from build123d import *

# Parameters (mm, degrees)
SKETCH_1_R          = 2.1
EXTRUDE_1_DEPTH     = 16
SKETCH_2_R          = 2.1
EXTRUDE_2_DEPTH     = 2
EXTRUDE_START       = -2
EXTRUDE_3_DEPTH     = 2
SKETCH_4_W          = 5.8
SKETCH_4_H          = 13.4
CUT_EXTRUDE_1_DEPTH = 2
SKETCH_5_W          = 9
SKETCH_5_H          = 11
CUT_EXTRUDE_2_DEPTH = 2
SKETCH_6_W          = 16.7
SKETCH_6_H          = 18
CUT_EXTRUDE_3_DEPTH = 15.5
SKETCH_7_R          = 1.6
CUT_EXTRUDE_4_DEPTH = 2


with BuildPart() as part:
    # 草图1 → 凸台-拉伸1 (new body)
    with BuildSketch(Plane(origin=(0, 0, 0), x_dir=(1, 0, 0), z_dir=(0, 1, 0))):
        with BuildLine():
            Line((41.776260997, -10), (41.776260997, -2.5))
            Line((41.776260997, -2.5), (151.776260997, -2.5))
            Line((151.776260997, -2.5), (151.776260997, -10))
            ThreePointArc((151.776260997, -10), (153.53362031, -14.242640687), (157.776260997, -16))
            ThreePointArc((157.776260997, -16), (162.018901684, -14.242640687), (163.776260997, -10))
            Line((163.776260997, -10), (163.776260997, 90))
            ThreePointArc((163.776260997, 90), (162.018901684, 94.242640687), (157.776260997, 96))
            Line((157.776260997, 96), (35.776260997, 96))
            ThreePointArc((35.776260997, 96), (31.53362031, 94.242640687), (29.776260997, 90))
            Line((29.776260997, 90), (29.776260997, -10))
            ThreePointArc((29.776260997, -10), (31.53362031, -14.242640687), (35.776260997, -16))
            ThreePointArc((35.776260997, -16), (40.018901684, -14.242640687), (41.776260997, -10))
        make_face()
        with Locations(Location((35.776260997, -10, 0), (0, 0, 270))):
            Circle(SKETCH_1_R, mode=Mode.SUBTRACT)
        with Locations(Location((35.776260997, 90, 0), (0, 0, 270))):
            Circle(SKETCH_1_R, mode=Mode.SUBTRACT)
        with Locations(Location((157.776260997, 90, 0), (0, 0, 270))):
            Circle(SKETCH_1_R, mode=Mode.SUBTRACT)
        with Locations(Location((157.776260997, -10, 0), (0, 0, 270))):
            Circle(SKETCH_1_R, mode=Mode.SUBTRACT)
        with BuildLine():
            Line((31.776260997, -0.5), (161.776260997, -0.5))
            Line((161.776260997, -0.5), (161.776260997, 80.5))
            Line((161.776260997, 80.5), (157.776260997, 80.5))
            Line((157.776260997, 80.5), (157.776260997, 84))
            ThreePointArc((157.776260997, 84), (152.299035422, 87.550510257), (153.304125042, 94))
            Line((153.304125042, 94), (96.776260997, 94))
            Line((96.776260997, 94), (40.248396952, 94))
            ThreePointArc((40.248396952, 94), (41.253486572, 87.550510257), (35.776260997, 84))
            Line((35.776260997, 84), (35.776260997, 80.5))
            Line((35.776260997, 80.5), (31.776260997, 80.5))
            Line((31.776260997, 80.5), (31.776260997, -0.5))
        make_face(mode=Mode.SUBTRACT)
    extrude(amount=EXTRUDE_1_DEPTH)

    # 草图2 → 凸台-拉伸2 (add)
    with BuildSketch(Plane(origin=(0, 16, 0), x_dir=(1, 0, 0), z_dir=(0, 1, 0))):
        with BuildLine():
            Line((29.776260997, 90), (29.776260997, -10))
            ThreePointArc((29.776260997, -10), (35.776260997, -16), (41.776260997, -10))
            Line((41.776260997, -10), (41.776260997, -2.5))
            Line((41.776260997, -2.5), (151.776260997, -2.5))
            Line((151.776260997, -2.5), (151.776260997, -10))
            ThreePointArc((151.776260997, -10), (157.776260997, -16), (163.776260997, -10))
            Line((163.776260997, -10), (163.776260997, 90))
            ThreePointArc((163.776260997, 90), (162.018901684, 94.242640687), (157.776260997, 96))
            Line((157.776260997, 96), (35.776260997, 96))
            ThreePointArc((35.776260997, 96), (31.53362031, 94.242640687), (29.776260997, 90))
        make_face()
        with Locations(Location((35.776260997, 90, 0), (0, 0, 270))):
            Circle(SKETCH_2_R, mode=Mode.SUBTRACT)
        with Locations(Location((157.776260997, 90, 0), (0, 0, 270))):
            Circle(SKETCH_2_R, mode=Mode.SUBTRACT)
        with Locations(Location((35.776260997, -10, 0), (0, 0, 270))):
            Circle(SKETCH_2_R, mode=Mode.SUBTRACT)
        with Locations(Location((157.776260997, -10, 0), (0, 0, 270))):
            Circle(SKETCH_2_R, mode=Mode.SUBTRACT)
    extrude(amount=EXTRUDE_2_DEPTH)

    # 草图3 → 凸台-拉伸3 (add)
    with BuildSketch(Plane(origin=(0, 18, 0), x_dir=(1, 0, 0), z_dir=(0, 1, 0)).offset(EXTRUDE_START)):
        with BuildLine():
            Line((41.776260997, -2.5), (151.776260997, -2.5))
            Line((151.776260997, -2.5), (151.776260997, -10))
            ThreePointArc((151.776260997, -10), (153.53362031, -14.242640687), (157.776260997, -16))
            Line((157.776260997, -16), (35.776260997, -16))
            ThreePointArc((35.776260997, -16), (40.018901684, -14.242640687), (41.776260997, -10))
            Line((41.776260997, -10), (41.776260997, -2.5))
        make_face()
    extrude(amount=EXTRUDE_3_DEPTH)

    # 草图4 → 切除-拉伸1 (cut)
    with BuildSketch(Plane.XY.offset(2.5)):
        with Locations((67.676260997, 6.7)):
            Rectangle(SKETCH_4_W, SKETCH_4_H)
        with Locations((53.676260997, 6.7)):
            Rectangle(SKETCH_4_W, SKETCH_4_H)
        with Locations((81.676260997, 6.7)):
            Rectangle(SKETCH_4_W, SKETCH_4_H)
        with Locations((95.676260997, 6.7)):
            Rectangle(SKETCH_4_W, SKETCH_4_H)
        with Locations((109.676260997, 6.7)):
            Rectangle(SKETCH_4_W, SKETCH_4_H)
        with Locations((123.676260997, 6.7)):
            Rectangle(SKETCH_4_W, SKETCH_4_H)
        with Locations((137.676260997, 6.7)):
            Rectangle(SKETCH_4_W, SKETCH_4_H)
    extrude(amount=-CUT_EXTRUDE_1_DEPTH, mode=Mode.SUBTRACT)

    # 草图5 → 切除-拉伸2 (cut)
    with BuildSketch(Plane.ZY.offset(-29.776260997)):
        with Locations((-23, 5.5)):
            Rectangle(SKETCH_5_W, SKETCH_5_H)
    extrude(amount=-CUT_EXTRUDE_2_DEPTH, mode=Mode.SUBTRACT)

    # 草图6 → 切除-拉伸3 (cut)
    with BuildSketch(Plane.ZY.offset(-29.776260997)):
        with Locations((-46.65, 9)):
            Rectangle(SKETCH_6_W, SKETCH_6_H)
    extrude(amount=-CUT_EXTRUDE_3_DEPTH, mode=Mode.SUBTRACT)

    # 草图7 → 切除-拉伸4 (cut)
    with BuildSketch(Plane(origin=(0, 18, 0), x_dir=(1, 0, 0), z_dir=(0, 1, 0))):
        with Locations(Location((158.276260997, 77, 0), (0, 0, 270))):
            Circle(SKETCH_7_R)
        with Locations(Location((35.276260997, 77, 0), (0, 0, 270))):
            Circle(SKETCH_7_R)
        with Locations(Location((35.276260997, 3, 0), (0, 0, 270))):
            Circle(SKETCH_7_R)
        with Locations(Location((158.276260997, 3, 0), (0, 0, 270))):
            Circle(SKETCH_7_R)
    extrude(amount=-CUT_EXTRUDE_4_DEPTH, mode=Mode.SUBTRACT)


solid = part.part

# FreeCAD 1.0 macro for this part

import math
import FreeCAD as App
import Part
import Sketcher

V = App.Vector


def add_polygon(sketch, points):
    """Adds a closed chain of lines whose ends are joined by coincident constraints."""
    first, n = sketch.GeometryCount, len(points)
    for a, b in zip(points, points[1:] + points[:1]):
        sketch.addGeometry(Part.LineSegment(App.Vector(*a, 0), App.Vector(*b, 0)), False)
    for i in range(n):
        sketch.addConstraint(Sketcher.Constraint("Coincident", first + i, 2, first + (i + 1) % n, 1))

doc = App.newDocument("Part")
body = doc.addObject("PartDesign::Body", "Body")

# Sketch on XZ plane
sketch1 = doc.addObject("Sketcher::SketchObject", "Sketch")
body.addObject(sketch1)
sketch1.AttachmentSupport = (doc.XZ_Plane, [""])
sketch1.MapMode = "FlatFace"
sketch1.addGeometry(Part.LineSegment(V(41.8, 10, 0), V(41.8, 2.5, 0)), False)
sketch1.addGeometry(Part.LineSegment(V(41.8, 2.5, 0), V(151.8, 2.5, 0)), False)
sketch1.addGeometry(Part.LineSegment(V(151.8, 2.5, 0), V(151.8, 10, 0)), False)
sketch1.addGeometry(Part.ArcOfCircle(Part.Circle(V(157.8, 10, 0), V(0, 0, 1), 6), math.radians(90), math.radians(180)), False)
sketch1.addGeometry(Part.ArcOfCircle(Part.Circle(V(157.8, 10, 0), V(0, 0, 1), 6), math.radians(0), math.radians(90)), False)
sketch1.addGeometry(Part.LineSegment(V(163.8, 10, 0), V(163.8, -90, 0)), False)
sketch1.addGeometry(Part.ArcOfCircle(Part.Circle(V(157.8, -90, 0), V(0, 0, 1), 6), math.radians(-90), math.radians(0)), False)
sketch1.addGeometry(Part.LineSegment(V(157.8, -96, 0), V(35.8, -96, 0)), False)
sketch1.addGeometry(Part.ArcOfCircle(Part.Circle(V(35.8, -90, 0), V(0, 0, 1), 6), math.radians(180), math.radians(270)), False)
sketch1.addGeometry(Part.LineSegment(V(29.8, -90, 0), V(29.8, 10, 0)), False)
sketch1.addGeometry(Part.ArcOfCircle(Part.Circle(V(35.8, 10, 0), V(0, 0, 1), 6), math.radians(90), math.radians(180)), False)
sketch1.addGeometry(Part.ArcOfCircle(Part.Circle(V(35.8, 10, 0), V(0, 0, 1), 6), math.radians(0), math.radians(90)), False)
sketch1.addGeometry(Part.Circle(V(35.8, 10, 0), V(0, 0, 1), 2.1), False)
sketch1.addGeometry(Part.Circle(V(157.8, 10, 0), V(0, 0, 1), 2.1), False)
sketch1.addGeometry(Part.Circle(V(35.8, -90, 0), V(0, 0, 1), 2.1), False)
sketch1.addGeometry(Part.LineSegment(V(161.8, 0.5, 0), V(31.8, 0.5, 0)), False)
sketch1.addGeometry(Part.LineSegment(V(31.8, 0.5, 0), V(31.8, -80.5, 0)), False)
sketch1.addGeometry(Part.LineSegment(V(31.8, -80.5, 0), V(35.8, -80.5, 0)), False)
sketch1.addGeometry(Part.LineSegment(V(35.8, -80.5, 0), V(35.8, -84, 0)), False)
sketch1.addGeometry(Part.ArcOfCircle(Part.Circle(V(35.8, -90, 0), V(0, 0, 1), 6), math.radians(-42), math.radians(90)), False)
sketch1.addGeometry(Part.LineSegment(V(40.2, -94, 0), V(153.3, -94, 0)), False)
sketch1.addGeometry(Part.ArcOfCircle(Part.Circle(V(157.8, -90, 0), V(0, 0, 1), 6), math.radians(90), math.radians(222)), False)
sketch1.addGeometry(Part.LineSegment(V(157.8, -84, 0), V(157.8, -80.5, 0)), False)
sketch1.addGeometry(Part.LineSegment(V(157.8, -80.5, 0), V(161.8, -80.5, 0)), False)
sketch1.addGeometry(Part.LineSegment(V(161.8, -80.5, 0), V(161.8, 0.5, 0)), False)
sketch1.addGeometry(Part.Circle(V(157.8, -90, 0), V(0, 0, 1), 2.1), False)
sketch1.addConstraint(Sketcher.Constraint("Coincident", 0, 2, 1, 1))
sketch1.addConstraint(Sketcher.Constraint("Coincident", 1, 2, 2, 1))
sketch1.addConstraint(Sketcher.Constraint("Tangent", 2, 2, 3, 2))
sketch1.addConstraint(Sketcher.Constraint("Tangent", 3, 1, 4, 2))
sketch1.addConstraint(Sketcher.Constraint("Tangent", 4, 1, 5, 1))
sketch1.addConstraint(Sketcher.Constraint("Tangent", 5, 2, 6, 2))
sketch1.addConstraint(Sketcher.Constraint("Tangent", 6, 1, 7, 1))
sketch1.addConstraint(Sketcher.Constraint("Tangent", 7, 2, 8, 2))
sketch1.addConstraint(Sketcher.Constraint("Tangent", 8, 1, 9, 1))
sketch1.addConstraint(Sketcher.Constraint("Tangent", 9, 2, 10, 2))
sketch1.addConstraint(Sketcher.Constraint("Tangent", 10, 1, 11, 2))
sketch1.addConstraint(Sketcher.Constraint("Tangent", 11, 1, 0, 1))
sketch1.addConstraint(Sketcher.Constraint("Coincident", 15, 2, 16, 1))
sketch1.addConstraint(Sketcher.Constraint("Coincident", 16, 2, 17, 1))
sketch1.addConstraint(Sketcher.Constraint("Coincident", 17, 2, 18, 1))
sketch1.addConstraint(Sketcher.Constraint("Coincident", 18, 2, 19, 2))
sketch1.addConstraint(Sketcher.Constraint("Coincident", 19, 1, 20, 1))
sketch1.addConstraint(Sketcher.Constraint("Coincident", 20, 2, 21, 2))
sketch1.addConstraint(Sketcher.Constraint("Coincident", 21, 1, 22, 1))
sketch1.addConstraint(Sketcher.Constraint("Coincident", 22, 2, 23, 1))
sketch1.addConstraint(Sketcher.Constraint("Coincident", 23, 2, 24, 1))
sketch1.addConstraint(Sketcher.Constraint("Coincident", 24, 2, 15, 1))
sketch1.addConstraint(Sketcher.Constraint("Vertical", 0))
sketch1.addConstraint(Sketcher.Constraint("Horizontal", 1))
sketch1.addConstraint(Sketcher.Constraint("Vertical", 2))
sketch1.addConstraint(Sketcher.Constraint("Vertical", 5))
sketch1.addConstraint(Sketcher.Constraint("Horizontal", 7))
sketch1.addConstraint(Sketcher.Constraint("Vertical", 9))
sketch1.addConstraint(Sketcher.Constraint("Horizontal", 15))
sketch1.addConstraint(Sketcher.Constraint("Vertical", 16))
sketch1.addConstraint(Sketcher.Constraint("Horizontal", 17))
sketch1.addConstraint(Sketcher.Constraint("Vertical", 18))
sketch1.addConstraint(Sketcher.Constraint("Horizontal", 20))
sketch1.addConstraint(Sketcher.Constraint("Vertical", 22))
sketch1.addConstraint(Sketcher.Constraint("Horizontal", 23))
sketch1.addConstraint(Sketcher.Constraint("Vertical", 24))
sketch1.addConstraint(Sketcher.Constraint("Coincident", 12, 3, 10, 3))
sketch1.addConstraint(Sketcher.Constraint("Coincident", 13, 3, 3, 3))
sketch1.addConstraint(Sketcher.Constraint("Coincident", 14, 3, 8, 3))
sketch1.addConstraint(Sketcher.Constraint("Coincident", 19, 3, 8, 3))
sketch1.addConstraint(Sketcher.Constraint("Coincident", 21, 3, 6, 3))
sketch1.addConstraint(Sketcher.Constraint("Coincident", 25, 3, 6, 3))
sketch1.addConstraint(Sketcher.Constraint("Equal", 3, 4))
sketch1.addConstraint(Sketcher.Constraint("Equal", 4, 6))
sketch1.addConstraint(Sketcher.Constraint("Equal", 6, 8))
sketch1.addConstraint(Sketcher.Constraint("Equal", 8, 10))
sketch1.addConstraint(Sketcher.Constraint("Equal", 10, 11))
sketch1.addConstraint(Sketcher.Constraint("Equal", 12, 13))
sketch1.addConstraint(Sketcher.Constraint("Equal", 13, 14))
sketch1.addConstraint(Sketcher.Constraint("Equal", 11, 19))
sketch1.addConstraint(Sketcher.Constraint("Equal", 19, 21))
sketch1.addConstraint(Sketcher.Constraint("Equal", 14, 25))
sketch1.addConstraint(Sketcher.Constraint("Horizontal", 4, 3, 10, 3))
sketch1.addConstraint(Sketcher.Constraint("Horizontal", 17, 2, 22, 2))
sketch1.addConstraint(Sketcher.Constraint("Vertical", 25, 3, 3, 1))
sketch1.addConstraint(Sketcher.Constraint("Vertical", 7, 2, 10, 1))
sketch1.addConstraint(Sketcher.Constraint("Vertical", 10, 1, 17, 2))
sketch1.addConstraint(Sketcher.Constraint("Vertical", 6, 1, 21, 1))
sketch1.addConstraint(Sketcher.Constraint("Equal", 17, 23))
sketch1.addConstraint(Sketcher.Constraint("Radius", 3, 6.0))
sketch1.addConstraint(Sketcher.Constraint("Diameter", 12, 4.2))
sketch1.addConstraint(Sketcher.Constraint("DistanceX", 1, 1, 1, 2, 110.0))
sketch1.addConstraint(Sketcher.Constraint("DistanceX", 15, 2, 15, 1, 130.0))
sketch1.addConstraint(Sketcher.Constraint("DistanceY", 5, 2, 5, 1, 100.0))
sketch1.addConstraint(Sketcher.Constraint("DistanceY", 16, 2, 16, 1, 81.0))
sketch1.addConstraint(Sketcher.Constraint("DistanceY", 0, 2, 0, 1, 7.5))
sketch1.addConstraint(Sketcher.Constraint("DistanceY", 18, 2, 18, 1, 3.5))
sketch1.addConstraint(Sketcher.Constraint("DistanceY", -1, 1, 3, 3, 10.0))
sketch1.addConstraint(Sketcher.Constraint("DistanceY", 19, 1, -1, 1, 94.0))
sketch1.addConstraint(Sketcher.Constraint("DistanceX", -1, 1, 3, 3, 157.776261))
pad1 = doc.addObject("PartDesign::Pad", "Pad")
body.addObject(pad1)
pad1.Profile = sketch1
pad1.Length = 16
pad1.Reversed = True

# Sketch on XZ plane
sketch2 = doc.addObject("Sketcher::SketchObject", "Sketch001")
body.addObject(sketch2)
sketch2.AttachmentSupport = (doc.XZ_Plane, [""])
sketch2.MapMode = "FlatFace"
sketch2.AttachmentOffset = App.Placement(V(0, 0, -16), App.Rotation())
sketch2.addGeometry(Part.LineSegment(V(29.8, -90, 0), V(29.8, 10, 0)), False)
sketch2.addGeometry(Part.ArcOfCircle(Part.Circle(V(35.8, 10, 0), V(0, 0, 1), 6), math.radians(0), math.radians(180)), False)
sketch2.addGeometry(Part.LineSegment(V(41.8, 10, 0), V(41.8, 2.5, 0)), False)
sketch2.addGeometry(Part.LineSegment(V(41.8, 2.5, 0), V(151.8, 2.5, 0)), False)
sketch2.addGeometry(Part.LineSegment(V(151.8, 2.5, 0), V(151.8, 10, 0)), False)
sketch2.addGeometry(Part.ArcOfCircle(Part.Circle(V(157.8, 10, 0), V(0, 0, 1), 6), math.radians(0), math.radians(180)), False)
sketch2.addGeometry(Part.LineSegment(V(163.8, 10, 0), V(163.8, -90, 0)), False)
sketch2.addGeometry(Part.ArcOfCircle(Part.Circle(V(157.8, -90, 0), V(0, 0, 1), 6), math.radians(-90), math.radians(0)), False)
sketch2.addGeometry(Part.LineSegment(V(157.8, -96, 0), V(35.8, -96, 0)), False)
sketch2.addGeometry(Part.ArcOfCircle(Part.Circle(V(35.8, -90, 0), V(0, 0, 1), 6), math.radians(180), math.radians(270)), False)
sketch2.addGeometry(Part.Circle(V(35.8, 10, 0), V(0, 0, 1), 2.1), False)
sketch2.addGeometry(Part.Circle(V(157.8, 10, 0), V(0, 0, 1), 2.1), False)
sketch2.addGeometry(Part.Circle(V(35.8, -90, 0), V(0, 0, 1), 2.1), False)
sketch2.addGeometry(Part.Circle(V(157.8, -90, 0), V(0, 0, 1), 2.1), False)
sketch2.addConstraint(Sketcher.Constraint("Tangent", 0, 2, 1, 2))
sketch2.addConstraint(Sketcher.Constraint("Tangent", 1, 1, 2, 1))
sketch2.addConstraint(Sketcher.Constraint("Coincident", 2, 2, 3, 1))
sketch2.addConstraint(Sketcher.Constraint("Coincident", 3, 2, 4, 1))
sketch2.addConstraint(Sketcher.Constraint("Tangent", 4, 2, 5, 2))
sketch2.addConstraint(Sketcher.Constraint("Tangent", 5, 1, 6, 1))
sketch2.addConstraint(Sketcher.Constraint("Tangent", 6, 2, 7, 2))
sketch2.addConstraint(Sketcher.Constraint("Tangent", 7, 1, 8, 1))
sketch2.addConstraint(Sketcher.Constraint("Tangent", 8, 2, 9, 2))
sketch2.addConstraint(Sketcher.Constraint("Tangent", 9, 1, 0, 1))
sketch2.addConstraint(Sketcher.Constraint("Vertical", 0))
sketch2.addConstraint(Sketcher.Constraint("Vertical", 2))
sketch2.addConstraint(Sketcher.Constraint("Horizontal", 3))
sketch2.addConstraint(Sketcher.Constraint("Vertical", 4))
sketch2.addConstraint(Sketcher.Constraint("Vertical", 6))
sketch2.addConstraint(Sketcher.Constraint("Horizontal", 8))
sketch2.addConstraint(Sketcher.Constraint("Coincident", 10, 3, 1, 3))
sketch2.addConstraint(Sketcher.Constraint("Coincident", 11, 3, 5, 3))
sketch2.addConstraint(Sketcher.Constraint("Coincident", 12, 3, 9, 3))
sketch2.addConstraint(Sketcher.Constraint("Coincident", 13, 3, 7, 3))
sketch2.addConstraint(Sketcher.Constraint("Equal", 1, 5))
sketch2.addConstraint(Sketcher.Constraint("Equal", 5, 7))
sketch2.addConstraint(Sketcher.Constraint("Equal", 7, 9))
sketch2.addConstraint(Sketcher.Constraint("Equal", 10, 11))
sketch2.addConstraint(Sketcher.Constraint("Equal", 11, 12))
sketch2.addConstraint(Sketcher.Constraint("Equal", 12, 13))
sketch2.addConstraint(Sketcher.Constraint("Horizontal", 1, 3, 5, 3))
sketch2.addConstraint(Sketcher.Constraint("Radius", 1, 6.0))
sketch2.addConstraint(Sketcher.Constraint("Diameter", 10, 4.2))
sketch2.addConstraint(Sketcher.Constraint("DistanceX", 3, 1, 3, 2, 110.0))
sketch2.addConstraint(Sketcher.Constraint("DistanceY", 0, 1, 0, 2, 100.0))
sketch2.addConstraint(Sketcher.Constraint("DistanceY", 2, 2, 2, 1, 7.5))
sketch2.addConstraint(Sketcher.Constraint("DistanceY", -1, 1, 1, 3, 10.0))
sketch2.addConstraint(Sketcher.Constraint("DistanceX", -1, 1, 1, 3, 35.776261))
pad2 = doc.addObject("PartDesign::Pad", "Pad001")
body.addObject(pad2)
pad2.Profile = sketch2
pad2.Length = 2
pad2.Reversed = True

# Sketch on XZ plane
sketch3 = doc.addObject("Sketcher::SketchObject", "Sketch002")
body.addObject(sketch3)
sketch3.AttachmentSupport = (doc.XZ_Plane, [""])
sketch3.MapMode = "FlatFace"
sketch3.AttachmentOffset = App.Placement(V(0, 0, -16), App.Rotation())
sketch3.addGeometry(Part.LineSegment(V(152, 2, 0), V(42, 2, 0)), False)
sketch3.addGeometry(Part.LineSegment(V(42, 2, 0), V(42, 10, 0)), False)
sketch3.addGeometry(Part.ArcOfCircle(Part.Circle(V(36, 10, 0), V(0, 0, 1), 6), math.radians(0), math.radians(90)), False)
sketch3.addGeometry(Part.LineSegment(V(36, 16, 0), V(158, 16, 0)), False)
sketch3.addGeometry(Part.ArcOfCircle(Part.Circle(V(158, 10, 0), V(0, 0, 1), 6), math.radians(90), math.radians(180)), False)
sketch3.addGeometry(Part.LineSegment(V(152, 10, 0), V(152, 2, 0)), False)
sketch3.addConstraint(Sketcher.Constraint("Coincident", 0, 2, 1, 1))
sketch3.addConstraint(Sketcher.Constraint("Tangent", 1, 2, 2, 1))
sketch3.addConstraint(Sketcher.Constraint("Tangent", 2, 2, 3, 1))
sketch3.addConstraint(Sketcher.Constraint("Tangent", 3, 2, 4, 1))
sketch3.addConstraint(Sketcher.Constraint("Tangent", 4, 2, 5, 1))
sketch3.addConstraint(Sketcher.Constraint("Coincident", 5, 2, 0, 1))
sketch3.addConstraint(Sketcher.Constraint("Horizontal", 0))
sketch3.addConstraint(Sketcher.Constraint("Vertical", 1))
sketch3.addConstraint(Sketcher.Constraint("Horizontal", 3))
sketch3.addConstraint(Sketcher.Constraint("Vertical", 5))
sketch3.addConstraint(Sketcher.Constraint("Equal", 2, 4))
sketch3.addConstraint(Sketcher.Constraint("Radius", 2, 6.0))
sketch3.addConstraint(Sketcher.Constraint("DistanceX", 0, 2, 0, 1, 110.0))
sketch3.addConstraint(Sketcher.Constraint("DistanceY", 1, 1, 1, 2, 7.5))
sketch3.addConstraint(Sketcher.Constraint("DistanceY", -1, 1, 2, 3, 10.0))
sketch3.addConstraint(Sketcher.Constraint("DistanceX", -1, 1, 2, 3, 35.776261))
pad3 = doc.addObject("PartDesign::Pad", "Pad002")
body.addObject(pad3)
pad3.Profile = sketch3
pad3.Length = 2
pad3.Reversed = True

# Sketch on XY plane
sketch4 = doc.addObject("Sketcher::SketchObject", "Sketch003")
body.addObject(sketch4)
sketch4.AttachmentSupport = (doc.XY_Plane, [""])
sketch4.MapMode = "FlatFace"
sketch4.AttachmentOffset = App.Placement(V(0, 0, 2.5), App.Rotation())
add_polygon(sketch4, [(65, 13), (65, 0), (71, 0), (71, 13)])  # lines 0-3
add_polygon(sketch4, [(51, 13), (51, 0), (57, 0), (57, 13)])  # lines 4-7
add_polygon(sketch4, [(79, 13), (79, 0), (85, 0), (85, 13)])  # lines 8-11
add_polygon(sketch4, [(93, 13), (93, 0), (99, 0), (99, 13)])  # lines 12-15
add_polygon(sketch4, [(107, 13), (107, 0), (113, 0), (113, 13)])  # lines 16-19
add_polygon(sketch4, [(121, 13), (121, 0), (127, 0), (127, 13)])  # lines 20-23
add_polygon(sketch4, [(135, 13), (135, 0), (141, 0), (141, 13)])  # lines 24-27
sketch4.addConstraint(Sketcher.Constraint("Vertical", 0))
sketch4.addConstraint(Sketcher.Constraint("Horizontal", 1))
sketch4.addConstraint(Sketcher.Constraint("Vertical", 2))
sketch4.addConstraint(Sketcher.Constraint("Horizontal", 3))
sketch4.addConstraint(Sketcher.Constraint("Vertical", 4))
sketch4.addConstraint(Sketcher.Constraint("Horizontal", 5))
sketch4.addConstraint(Sketcher.Constraint("Vertical", 6))
sketch4.addConstraint(Sketcher.Constraint("Horizontal", 7))
sketch4.addConstraint(Sketcher.Constraint("Vertical", 8))
sketch4.addConstraint(Sketcher.Constraint("Horizontal", 9))
sketch4.addConstraint(Sketcher.Constraint("Vertical", 10))
sketch4.addConstraint(Sketcher.Constraint("Horizontal", 11))
sketch4.addConstraint(Sketcher.Constraint("Vertical", 12))
sketch4.addConstraint(Sketcher.Constraint("Horizontal", 13))
sketch4.addConstraint(Sketcher.Constraint("Vertical", 14))
sketch4.addConstraint(Sketcher.Constraint("Horizontal", 15))
sketch4.addConstraint(Sketcher.Constraint("Vertical", 16))
sketch4.addConstraint(Sketcher.Constraint("Horizontal", 17))
sketch4.addConstraint(Sketcher.Constraint("Vertical", 18))
sketch4.addConstraint(Sketcher.Constraint("Horizontal", 19))
sketch4.addConstraint(Sketcher.Constraint("Vertical", 20))
sketch4.addConstraint(Sketcher.Constraint("Horizontal", 21))
sketch4.addConstraint(Sketcher.Constraint("Vertical", 22))
sketch4.addConstraint(Sketcher.Constraint("Horizontal", 23))
sketch4.addConstraint(Sketcher.Constraint("Vertical", 24))
sketch4.addConstraint(Sketcher.Constraint("Horizontal", 25))
sketch4.addConstraint(Sketcher.Constraint("Vertical", 26))
sketch4.addConstraint(Sketcher.Constraint("Horizontal", 27))
sketch4.addConstraint(Sketcher.Constraint("PointOnObject", 0, 2, -1))
sketch4.addConstraint(Sketcher.Constraint("PointOnObject", 4, 2, -1))
sketch4.addConstraint(Sketcher.Constraint("PointOnObject", 8, 2, -1))
sketch4.addConstraint(Sketcher.Constraint("PointOnObject", 12, 2, -1))
sketch4.addConstraint(Sketcher.Constraint("PointOnObject", 16, 2, -1))
sketch4.addConstraint(Sketcher.Constraint("PointOnObject", 20, 2, -1))
sketch4.addConstraint(Sketcher.Constraint("PointOnObject", 24, 2, -1))
sketch4.addConstraint(Sketcher.Constraint("Horizontal", 3, 2, 6, 2))
sketch4.addConstraint(Sketcher.Constraint("Horizontal", 7, 2, 10, 2))
sketch4.addConstraint(Sketcher.Constraint("Horizontal", 11, 2, 14, 2))
sketch4.addConstraint(Sketcher.Constraint("Horizontal", 15, 2, 18, 2))
sketch4.addConstraint(Sketcher.Constraint("Horizontal", 19, 2, 22, 2))
sketch4.addConstraint(Sketcher.Constraint("Horizontal", 23, 2, 26, 2))
sketch4.addConstraint(Sketcher.Constraint("Equal", 3, 5))
sketch4.addConstraint(Sketcher.Constraint("Equal", 7, 9))
sketch4.addConstraint(Sketcher.Constraint("Equal", 11, 13))
sketch4.addConstraint(Sketcher.Constraint("Equal", 15, 17))
sketch4.addConstraint(Sketcher.Constraint("Equal", 19, 21))
sketch4.addConstraint(Sketcher.Constraint("Equal", 23, 25))
sketch4.addConstraint(Sketcher.Constraint("DistanceX", 1, 1, 1, 2, 5.8))
sketch4.addConstraint(Sketcher.Constraint("DistanceY", 0, 2, 0, 1, 13.4))
sketch4.addConstraint(Sketcher.Constraint("DistanceX", 4, 2, 0, 2, 14.0))
sketch4.addConstraint(Sketcher.Constraint("DistanceX", 0, 2, 8, 2, 14.0))
sketch4.addConstraint(Sketcher.Constraint("DistanceX", 8, 2, 12, 2, 14.0))
sketch4.addConstraint(Sketcher.Constraint("DistanceX", 12, 2, 16, 2, 14.0))
sketch4.addConstraint(Sketcher.Constraint("DistanceX", 16, 2, 20, 2, 14.0))
sketch4.addConstraint(Sketcher.Constraint("DistanceX", 20, 2, 24, 2, 14.0))
sketch4.addConstraint(Sketcher.Constraint("DistanceX", -1, 1, 0, 2, 64.776261))
pocket1 = doc.addObject("PartDesign::Pocket", "Pocket")
body.addObject(pocket1)
pocket1.Profile = sketch4
pocket1.Length = 2

# Sketch on YZ plane
sketch5 = doc.addObject("Sketcher::SketchObject", "Sketch004")
body.addObject(sketch5)
sketch5.AttachmentSupport = (doc.YZ_Plane, [""])
sketch5.MapMode = "FlatFace"
sketch5.AttachmentOffset = App.Placement(V(0, 0, 29.776261), App.Rotation())
add_polygon(sketch5, [(11, -28), (0, -28), (0, -18), (11, -18)])  # lines 0-3
sketch5.addConstraint(Sketcher.Constraint("Horizontal", 0))
sketch5.addConstraint(Sketcher.Constraint("Vertical", 1))
sketch5.addConstraint(Sketcher.Constraint("Horizontal", 2))
sketch5.addConstraint(Sketcher.Constraint("Vertical", 3))
sketch5.addConstraint(Sketcher.Constraint("PointOnObject", 0, 2, -2))
sketch5.addConstraint(Sketcher.Constraint("DistanceX", 0, 2, 0, 1, 11.0))
sketch5.addConstraint(Sketcher.Constraint("DistanceY", 1, 1, 1, 2, 9.0))
sketch5.addConstraint(Sketcher.Constraint("DistanceY", 0, 2, -1, 1, 27.5))
pocket2 = doc.addObject("PartDesign::Pocket", "Pocket001")
body.addObject(pocket2)
pocket2.Profile = sketch5
pocket2.Length = 2
pocket2.Reversed = True

# Sketch on YZ plane
sketch6 = doc.addObject("Sketcher::SketchObject", "Sketch005")
body.addObject(sketch6)
sketch6.AttachmentSupport = (doc.YZ_Plane, [""])
sketch6.MapMode = "FlatFace"
sketch6.AttachmentOffset = App.Placement(V(0, 0, 29.776261), App.Rotation())
add_polygon(sketch6, [(18, -55), (0, -55), (0, -38), (18, -38)])  # lines 0-3
sketch6.addConstraint(Sketcher.Constraint("Horizontal", 0))
sketch6.addConstraint(Sketcher.Constraint("Vertical", 1))
sketch6.addConstraint(Sketcher.Constraint("Horizontal", 2))
sketch6.addConstraint(Sketcher.Constraint("Vertical", 3))
sketch6.addConstraint(Sketcher.Constraint("PointOnObject", 0, 2, -2))
sketch6.addConstraint(Sketcher.Constraint("DistanceX", 0, 2, 0, 1, 18.0))
sketch6.addConstraint(Sketcher.Constraint("DistanceY", 1, 1, 1, 2, 16.7))
sketch6.addConstraint(Sketcher.Constraint("DistanceY", 0, 2, -1, 1, 55.0))
pocket3 = doc.addObject("PartDesign::Pocket", "Pocket002")
body.addObject(pocket3)
pocket3.Profile = sketch6
pocket3.Length = 15.5
pocket3.Reversed = True

# Sketch on XZ plane
sketch7 = doc.addObject("Sketcher::SketchObject", "Sketch006")
body.addObject(sketch7)
sketch7.AttachmentSupport = (doc.XZ_Plane, [""])
sketch7.MapMode = "FlatFace"
sketch7.AttachmentOffset = App.Placement(V(0, 0, -18), App.Rotation())
sketch7.addGeometry(Part.Circle(V(158.3, -77, 0), V(0, 0, 1), 1.6), False)
sketch7.addGeometry(Part.Circle(V(35.3, -77, 0), V(0, 0, 1), 1.6), False)
sketch7.addGeometry(Part.Circle(V(35.3, -3, 0), V(0, 0, 1), 1.6), False)
sketch7.addGeometry(Part.Circle(V(158.3, -3, 0), V(0, 0, 1), 1.6), False)
sketch7.addConstraint(Sketcher.Constraint("Equal", 0, 1))
sketch7.addConstraint(Sketcher.Constraint("Equal", 1, 2))
sketch7.addConstraint(Sketcher.Constraint("Equal", 2, 3))
sketch7.addConstraint(Sketcher.Constraint("Horizontal", 0, 3, 1, 3))
sketch7.addConstraint(Sketcher.Constraint("Horizontal", 2, 3, 3, 3))
sketch7.addConstraint(Sketcher.Constraint("Vertical", 1, 3, 2, 3))
sketch7.addConstraint(Sketcher.Constraint("Vertical", 0, 3, 3, 3))
sketch7.addConstraint(Sketcher.Constraint("Diameter", 0, 3.2))
sketch7.addConstraint(Sketcher.Constraint("DistanceY", 0, 3, -1, 1, 77.0))
sketch7.addConstraint(Sketcher.Constraint("DistanceY", 2, 3, -1, 1, 3.0))
sketch7.addConstraint(Sketcher.Constraint("DistanceX", 1, 3, 0, 3, 123.0))
sketch7.addConstraint(Sketcher.Constraint("DistanceX", -1, 1, 0, 3, 158.276261))
pocket4 = doc.addObject("PartDesign::Pocket", "Pocket003")
body.addObject(pocket4)
pocket4.Profile = sketch7
pocket4.Length = 2
pocket4.Reversed = True

doc.recompute()
